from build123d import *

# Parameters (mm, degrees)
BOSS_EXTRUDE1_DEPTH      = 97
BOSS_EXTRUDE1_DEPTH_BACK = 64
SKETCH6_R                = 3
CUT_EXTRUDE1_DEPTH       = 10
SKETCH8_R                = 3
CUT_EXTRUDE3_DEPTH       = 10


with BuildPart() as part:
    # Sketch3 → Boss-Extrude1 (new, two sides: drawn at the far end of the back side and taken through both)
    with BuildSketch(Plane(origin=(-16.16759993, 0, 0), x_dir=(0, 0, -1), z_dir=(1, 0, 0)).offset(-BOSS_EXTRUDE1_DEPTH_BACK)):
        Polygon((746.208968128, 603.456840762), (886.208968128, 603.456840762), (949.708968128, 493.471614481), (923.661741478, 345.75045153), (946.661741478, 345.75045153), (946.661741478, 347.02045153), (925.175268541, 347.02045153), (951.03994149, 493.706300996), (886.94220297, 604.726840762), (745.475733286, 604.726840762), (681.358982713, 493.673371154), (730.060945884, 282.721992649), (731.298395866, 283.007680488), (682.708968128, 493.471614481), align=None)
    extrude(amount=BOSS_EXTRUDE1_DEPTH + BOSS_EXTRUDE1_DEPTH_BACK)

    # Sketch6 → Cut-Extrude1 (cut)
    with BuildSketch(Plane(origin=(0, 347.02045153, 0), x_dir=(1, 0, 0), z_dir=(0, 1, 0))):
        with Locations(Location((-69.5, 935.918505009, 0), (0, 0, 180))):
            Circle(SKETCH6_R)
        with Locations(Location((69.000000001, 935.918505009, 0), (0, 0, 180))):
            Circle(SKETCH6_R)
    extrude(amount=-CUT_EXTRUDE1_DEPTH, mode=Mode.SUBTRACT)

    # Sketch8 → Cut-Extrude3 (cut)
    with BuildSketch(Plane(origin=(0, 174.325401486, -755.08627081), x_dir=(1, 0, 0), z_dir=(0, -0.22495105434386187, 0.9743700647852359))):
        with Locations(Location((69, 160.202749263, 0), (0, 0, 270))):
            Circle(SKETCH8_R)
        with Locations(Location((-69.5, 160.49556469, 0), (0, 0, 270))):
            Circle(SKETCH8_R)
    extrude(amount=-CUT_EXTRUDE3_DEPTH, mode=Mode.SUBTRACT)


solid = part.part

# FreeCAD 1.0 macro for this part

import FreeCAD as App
import Part
import Sketcher
Q = App.Units.Quantity

doc = App.newDocument("Part")
body = doc.addObject("PartDesign::Body", "Body")

# Sketch on YZ plane
sketch1 = doc.addObject("Sketcher::SketchObject", "Sketch")
body.addObject(sketch1)
sketch1.AttachmentSupport = (doc.YZ_Plane, [""])
sketch1.MapMode = "FlatFace"
sketch1.AttachmentOffset = App.Placement(App.Vector(0, 0, -16.1676), App.Rotation())
sketch1.addGeometry([
    Part.LineSegment(App.Vector(603.456841, -746.208968, 0), App.Vector(603.456841, -886.208968, 0)),  # 0
    Part.LineSegment(App.Vector(603.456841, -886.208968, 0), App.Vector(493.471614, -949.708968, 0)),  # 1
    Part.LineSegment(App.Vector(493.471614, -949.708968, 0), App.Vector(345.750452, -923.661741, 0)),  # 2
    Part.LineSegment(App.Vector(345.750452, -923.661741, 0), App.Vector(345.750452, -946.661741, 0)),  # 3
    Part.LineSegment(App.Vector(345.750452, -946.661741, 0), App.Vector(347.020452, -946.661741, 0)),  # 4
    Part.LineSegment(App.Vector(347.020452, -946.661741, 0), App.Vector(347.020452, -925.175269, 0)),  # 5
    Part.LineSegment(App.Vector(347.020452, -925.175269, 0), App.Vector(493.706301, -951.039941, 0)),  # 6
    Part.LineSegment(App.Vector(493.706301, -951.039941, 0), App.Vector(604.726841, -886.942203, 0)),  # 7
    Part.LineSegment(App.Vector(604.726841, -886.942203, 0), App.Vector(604.726841, -745.475733, 0)),  # 8
    Part.LineSegment(App.Vector(604.726841, -745.475733, 0), App.Vector(493.673371, -681.358983, 0)),  # 9
    Part.LineSegment(App.Vector(493.673371, -681.358983, 0), App.Vector(282.721993, -730.060946, 0)),  # 10
    Part.LineSegment(App.Vector(282.721993, -730.060946, 0), App.Vector(283.00768, -731.298396, 0)),  # 11
    Part.LineSegment(App.Vector(283.00768, -731.298396, 0), App.Vector(493.471614, -682.708968, 0)),  # 12
    Part.LineSegment(App.Vector(493.471614, -682.708968, 0), App.Vector(603.456841, -746.208968, 0)),  # 13
], False)
sketch1.addConstraint([
    Sketcher.Constraint("Coincident", 0, 2, 1, 1),
    Sketcher.Constraint("Coincident", 1, 2, 2, 1),
    Sketcher.Constraint("Coincident", 2, 2, 3, 1),
    Sketcher.Constraint("Coincident", 3, 2, 4, 1),
    Sketcher.Constraint("Coincident", 4, 2, 5, 1),
    Sketcher.Constraint("Coincident", 5, 2, 6, 1),
    Sketcher.Constraint("Coincident", 6, 2, 7, 1),
    Sketcher.Constraint("Coincident", 7, 2, 8, 1),
    Sketcher.Constraint("Coincident", 8, 2, 9, 1),
    Sketcher.Constraint("Coincident", 9, 2, 10, 1),
    Sketcher.Constraint("Coincident", 10, 2, 11, 1),
    Sketcher.Constraint("Coincident", 11, 2, 12, 1),
    Sketcher.Constraint("Coincident", 12, 2, 13, 1),
    Sketcher.Constraint("Coincident", 13, 2, 0, 1),
    Sketcher.Constraint("Vertical", 0),
    Sketcher.Constraint("Vertical", 3),
    Sketcher.Constraint("Horizontal", 4),
    Sketcher.Constraint("Vertical", 5),
    Sketcher.Constraint("Vertical", 8),
    Sketcher.Constraint("Parallel", 2, 6),
    Sketcher.Constraint("Parallel", 1, 7),
    Sketcher.Constraint("Perpendicular", 10, 11),
    Sketcher.Constraint("Perpendicular", 11, 12),
    Sketcher.Constraint("Parallel", 9, 13),
    Sketcher.Constraint("Vertical", 1, 2, 12, 2),
    Sketcher.Constraint("Equal", 1, 13),
    Sketcher.Constraint("DistanceY", 0, 2, 0, 1, Q("140 mm")),
    Sketcher.Constraint("DistanceY", 3, 2, 3, 1, Q("23 mm")),
    Sketcher.Constraint("Angle", 1, Q("-150 deg")),
    Sketcher.Constraint("Angle", 2, Q("170 deg")),
    Sketcher.Constraint("Angle", 10, Q("-167 deg")),
    Sketcher.Constraint("Distance", 1, Q("127 mm")),
    Sketcher.Constraint("Distance", 2, Q("150 mm")),
    Sketcher.Constraint("Distance", 12, Q("216 mm")),
    Sketcher.Constraint("DistanceX", 4, 1, 4, 2, Q("1.27 mm")),
    Sketcher.Constraint("Distance", 11, Q("1.27 mm")),
    Sketcher.Constraint("DistanceX", 0, 2, 7, 2, Q("1.27 mm")),
    Sketcher.Constraint("Distance", 9, Q("128.233501 mm")),
    Sketcher.Constraint("DistanceY", 8, 1, 8, 2, Q("141.46647 mm")),
    Sketcher.Constraint("DistanceX", -1, 1, 6, 2, Q("493.706301 mm")),
    Sketcher.Constraint("DistanceY", 1, 2, 5, 2, Q("24.5337 mm")),
    Sketcher.Constraint("DistanceY", 0, 2, -1, 1, Q("886.208968 mm")),
])
pad1 = doc.addObject("PartDesign::Pad", "Pad")
body.addObject(pad1)
pad1.Profile = sketch1
pad1.Type = "TwoLengths"
pad1.Length = 97
pad1.Length2 = 64

# Sketch on XZ plane
sketch2 = doc.addObject("Sketcher::SketchObject", "Sketch001")
body.addObject(sketch2)
sketch2.AttachmentSupport = (doc.XZ_Plane, [""])
sketch2.MapMode = "FlatFace"
sketch2.AttachmentOffset = App.Placement(App.Vector(0, 0, -347.020452), App.Rotation())
sketch2.addGeometry([
    Part.Circle(App.Vector(-69.5, -935.918505, 0), App.Vector(0, 0, 1), 3),
    Part.Circle(App.Vector(69, -935.918505, 0), App.Vector(0, 0, 1), 3),
], False)
sketch2.addConstraint([
    Sketcher.Constraint("Equal", 0, 1),
    Sketcher.Constraint("Horizontal", 0, 3, 1, 3),
    Sketcher.Constraint("Diameter", 0, Q("6 mm")),
    Sketcher.Constraint("DistanceX", -1, 1, 1, 3, Q("69 mm")),
    Sketcher.Constraint("DistanceX", 0, 3, -1, 1, Q("69.5 mm")),
    Sketcher.Constraint("DistanceY", 0, 3, -1, 1, Q("935.918505 mm")),
])
pocket1 = doc.addObject("PartDesign::Pocket", "Pocket")
body.addObject(pocket1)
pocket1.Profile = sketch2
pocket1.Length = 10
pocket1.Reversed = True

# Sketch on an angled plane
sketch3 = doc.addObject("Sketcher::SketchObject", "Sketch002")
body.addObject(sketch3)
sketch3.Placement = App.Placement(App.Vector(0, 174.325401, -755.086271), App.Rotation(App.Vector(1, 0, 0), App.Vector(0, 0.974370065, 0.224951054), App.Vector(0, -0.224951054, 0.974370065), "ZXY"))
sketch3.addGeometry([
    Part.Circle(App.Vector(69, 160.202749, 0), App.Vector(0, 0, 1), 3),
    Part.Circle(App.Vector(-69.5, 160.495565, 0), App.Vector(0, 0, 1), 3),
], False)
sketch3.addConstraint([
    Sketcher.Constraint("Equal", 0, 1),
    Sketcher.Constraint("Diameter", 0, Q("6 mm")),
    Sketcher.Constraint("DistanceX", -1, 1, 0, 3, Q("69 mm")),
    Sketcher.Constraint("DistanceX", 1, 3, -1, 1, Q("69.5 mm")),
    Sketcher.Constraint("DistanceY", -1, 1, 0, 3, Q("160.202749 mm")),
    Sketcher.Constraint("DistanceY", -1, 1, 1, 3, Q("160.495565 mm")),
])
pocket2 = doc.addObject("PartDesign::Pocket", "Pocket001")
body.addObject(pocket2)
pocket2.Profile = sketch3
pocket2.Length = 10

doc.recompute()
